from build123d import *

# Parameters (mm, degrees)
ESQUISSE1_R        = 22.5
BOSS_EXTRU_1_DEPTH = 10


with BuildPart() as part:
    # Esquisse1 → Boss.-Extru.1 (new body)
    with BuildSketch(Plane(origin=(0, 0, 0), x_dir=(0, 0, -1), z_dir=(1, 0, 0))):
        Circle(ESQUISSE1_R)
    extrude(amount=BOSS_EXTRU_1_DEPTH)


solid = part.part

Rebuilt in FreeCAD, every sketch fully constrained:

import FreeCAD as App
import Part
import Sketcher

V = App.Vector

doc = App.newDocument("Part")
params = doc.addObject("Spreadsheet::Sheet", "Params")
for row, (alias, value) in enumerate([
    ("sketch1_diameter", "45 mm"),
    ("pad1_length", "10 mm"),
], start=1):
    params.set(f"A{row}", alias)
    params.set(f"B{row}", "=" + value)
    params.setAlias(f"B{row}", alias)

body = doc.addObject("PartDesign::Body", "Body")

sketch1 = body.newObject("Sketcher::SketchObject", "Sketch")
sketch1.AttachmentSupport = (doc.getObject("YZ_Plane"), [""])
sketch1.MapMode = "FlatFace"
sketch1.addGeometry(Part.Circle(V(0, 0, 0), V(0, 0, 1), 22), False)
sketch1.addConstraint([
    Sketcher.Constraint("Coincident", 0, 3, -1, 1),
    Sketcher.Constraint("Diameter", 0, 45.0),
])
sketch1.setExpression("Constraints[1]", "Params.sketch1_diameter")
pad1 = body.newObject("PartDesign::Pad", "Pad")
pad1.Profile = sketch1
pad1.setExpression("Length", "Params.pad1_length")

doc.recompute()
